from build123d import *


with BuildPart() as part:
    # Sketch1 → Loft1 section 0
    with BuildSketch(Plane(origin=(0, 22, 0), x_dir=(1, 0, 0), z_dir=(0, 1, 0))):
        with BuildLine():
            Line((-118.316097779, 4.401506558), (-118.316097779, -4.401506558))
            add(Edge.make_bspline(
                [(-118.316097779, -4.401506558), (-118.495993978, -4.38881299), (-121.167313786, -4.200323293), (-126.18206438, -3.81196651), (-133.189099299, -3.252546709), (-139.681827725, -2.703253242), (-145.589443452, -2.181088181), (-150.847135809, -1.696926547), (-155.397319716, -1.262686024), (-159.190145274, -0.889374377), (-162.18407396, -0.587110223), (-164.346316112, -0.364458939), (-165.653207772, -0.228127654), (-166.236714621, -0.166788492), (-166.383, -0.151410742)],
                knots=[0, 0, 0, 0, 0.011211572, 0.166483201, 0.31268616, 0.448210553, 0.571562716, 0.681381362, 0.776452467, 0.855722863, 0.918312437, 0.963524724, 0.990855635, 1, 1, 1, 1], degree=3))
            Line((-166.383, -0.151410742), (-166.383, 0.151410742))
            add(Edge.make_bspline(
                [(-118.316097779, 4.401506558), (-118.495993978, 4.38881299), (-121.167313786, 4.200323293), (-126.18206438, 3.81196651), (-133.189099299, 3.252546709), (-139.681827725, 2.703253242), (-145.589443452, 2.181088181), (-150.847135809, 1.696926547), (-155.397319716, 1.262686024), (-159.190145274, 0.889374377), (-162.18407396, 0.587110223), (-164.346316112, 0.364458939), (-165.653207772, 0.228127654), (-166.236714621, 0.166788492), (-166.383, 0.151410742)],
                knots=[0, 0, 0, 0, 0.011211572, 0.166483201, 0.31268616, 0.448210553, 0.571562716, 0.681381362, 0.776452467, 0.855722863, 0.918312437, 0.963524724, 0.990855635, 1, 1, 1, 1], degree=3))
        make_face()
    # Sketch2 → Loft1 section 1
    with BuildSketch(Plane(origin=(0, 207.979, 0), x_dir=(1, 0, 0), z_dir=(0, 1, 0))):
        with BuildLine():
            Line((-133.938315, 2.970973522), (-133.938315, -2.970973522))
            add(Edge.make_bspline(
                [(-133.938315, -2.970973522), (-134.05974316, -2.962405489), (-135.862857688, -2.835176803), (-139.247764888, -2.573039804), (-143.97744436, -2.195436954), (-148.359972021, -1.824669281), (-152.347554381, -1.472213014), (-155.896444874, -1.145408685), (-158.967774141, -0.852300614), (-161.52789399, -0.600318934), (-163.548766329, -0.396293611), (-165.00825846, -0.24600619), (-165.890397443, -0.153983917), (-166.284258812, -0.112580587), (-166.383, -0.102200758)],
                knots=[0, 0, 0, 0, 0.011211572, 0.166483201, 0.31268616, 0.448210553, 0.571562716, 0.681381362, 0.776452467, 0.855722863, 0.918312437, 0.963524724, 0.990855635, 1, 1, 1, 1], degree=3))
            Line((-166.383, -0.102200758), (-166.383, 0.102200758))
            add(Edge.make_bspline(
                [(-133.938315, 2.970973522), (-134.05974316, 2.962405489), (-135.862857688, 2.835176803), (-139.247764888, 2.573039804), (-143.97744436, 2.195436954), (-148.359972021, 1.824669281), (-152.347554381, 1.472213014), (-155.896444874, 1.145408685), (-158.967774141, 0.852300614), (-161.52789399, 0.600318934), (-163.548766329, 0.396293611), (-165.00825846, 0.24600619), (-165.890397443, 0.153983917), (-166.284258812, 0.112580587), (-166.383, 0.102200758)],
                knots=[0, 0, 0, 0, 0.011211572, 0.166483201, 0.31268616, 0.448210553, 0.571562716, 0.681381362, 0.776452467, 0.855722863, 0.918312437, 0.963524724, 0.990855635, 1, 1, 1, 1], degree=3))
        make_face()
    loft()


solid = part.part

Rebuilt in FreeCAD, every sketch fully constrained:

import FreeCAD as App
import Part
import Sketcher
from FreeCAD import Vector

doc = App.newDocument("Part")
body = doc.addObject("PartDesign::Body", "Body")

# Sketch on XZ plane
sketch1 = body.newObject("Sketcher::SketchObject", "Sketch")
sketch1.AttachmentSupport = (doc.getObject("XZ_Plane"), [""])
sketch1.MapMode = "FlatFace"
sketch1.AttachmentOffset = App.Placement(Vector(0, 0, -22), App.Rotation())
sketch1.addGeometry(Part.LineSegment(Vector(-118.316098, 4.401507, 0), Vector(-118.316098, -4.401507, 0)), False)
sketch1.addGeometry(Part.BSplineCurve([Vector(-118.316098, -4.401507, 0), Vector(-118.495994, -4.388813, 0), Vector(-121.167314, -4.200323, 0), Vector(-126.182064, -3.811967, 0), Vector(-133.189099, -3.252547, 0), Vector(-139.681828, -2.703253, 0), Vector(-145.589443, -2.181088, 0), Vector(-150.847136, -1.696927, 0), Vector(-155.39732, -1.262686, 0), Vector(-159.190145, -0.889374, 0), Vector(-162.184074, -0.58711, 0), Vector(-164.346316, -0.364459, 0), Vector(-165.653208, -0.228128, 0), Vector(-166.236715, -0.166788, 0), Vector(-166.383, -0.151411, 0)], [4, 1, 1, 1, 1, 1, 1, 1, 1, 1, 1, 1, 4], [0, 0.011211572, 0.166483201, 0.31268616, 0.448210553, 0.571562716, 0.681381362, 0.776452467, 0.855722863, 0.918312437, 0.963524724, 0.990855635, 1], False, 3, [1, 1, 1, 1, 1, 1, 1, 1, 1, 1, 1, 1, 1, 1, 1], False), False)
sketch1.addGeometry(Part.LineSegment(Vector(-166.383, -0.151411, 0), Vector(-166.383, 0.151411, 0)), False)
sketch1.addGeometry(Part.BSplineCurve([Vector(-118.316098, 4.401507, 0), Vector(-118.495994, 4.388813, 0), Vector(-121.167314, 4.200323, 0), Vector(-126.182064, 3.811967, 0), Vector(-133.189099, 3.252547, 0), Vector(-139.681828, 2.703253, 0), Vector(-145.589443, 2.181088, 0), Vector(-150.847136, 1.696927, 0), Vector(-155.39732, 1.262686, 0), Vector(-159.190145, 0.889374, 0), Vector(-162.184074, 0.58711, 0), Vector(-164.346316, 0.364459, 0), Vector(-165.653208, 0.228128, 0), Vector(-166.236715, 0.166788, 0), Vector(-166.383, 0.151411, 0)], [4, 1, 1, 1, 1, 1, 1, 1, 1, 1, 1, 1, 4], [0, 0.011211572, 0.166483201, 0.31268616, 0.448210553, 0.571562716, 0.681381362, 0.776452467, 0.855722863, 0.918312437, 0.963524724, 0.990855635, 1], False, 3, [1, 1, 1, 1, 1, 1, 1, 1, 1, 1, 1, 1, 1, 1, 1], False), False)
sketch1.addConstraint(Sketcher.Constraint("Block", 1))
sketch1.addConstraint(Sketcher.Constraint("Block", 3))
sketch1.addConstraint(Sketcher.Constraint("Coincident", 0, 2, 1, 1))
sketch1.addConstraint(Sketcher.Constraint("Coincident", 1, 2, 2, 1))
sketch1.addConstraint(Sketcher.Constraint("Coincident", 2, 2, 3, 2))
sketch1.addConstraint(Sketcher.Constraint("Coincident", 3, 1, 0, 1))

# Sketch on XZ plane
sketch2 = body.newObject("Sketcher::SketchObject", "Sketch001")
sketch2.AttachmentSupport = (doc.getObject("XZ_Plane"), [""])
sketch2.MapMode = "FlatFace"
sketch2.AttachmentOffset = App.Placement(Vector(0, 0, -207.979), App.Rotation())
sketch2.addGeometry(Part.LineSegment(Vector(-133.938315, 2.970974, 0), Vector(-133.938315, -2.970974, 0)), False)
sketch2.addGeometry(Part.BSplineCurve([Vector(-133.938315, -2.970974, 0), Vector(-134.059743, -2.962405, 0), Vector(-135.862858, -2.835177, 0), Vector(-139.247765, -2.57304, 0), Vector(-143.977444, -2.195437, 0), Vector(-148.359972, -1.824669, 0), Vector(-152.347554, -1.472213, 0), Vector(-155.896445, -1.145409, 0), Vector(-158.967774, -0.852301, 0), Vector(-161.527894, -0.600319, 0), Vector(-163.548766, -0.396294, 0), Vector(-165.008258, -0.246006, 0), Vector(-165.890397, -0.153984, 0), Vector(-166.284259, -0.112581, 0), Vector(-166.383, -0.102201, 0)], [4, 1, 1, 1, 1, 1, 1, 1, 1, 1, 1, 1, 4], [0, 0.011211572, 0.166483201, 0.31268616, 0.448210553, 0.571562716, 0.681381362, 0.776452467, 0.855722863, 0.918312437, 0.963524724, 0.990855635, 1], False, 3, [1, 1, 1, 1, 1, 1, 1, 1, 1, 1, 1, 1, 1, 1, 1], False), False)
sketch2.addGeometry(Part.LineSegment(Vector(-166.383, -0.102201, 0), Vector(-166.383, 0.102201, 0)), False)
sketch2.addGeometry(Part.BSplineCurve([Vector(-133.938315, 2.970974, 0), Vector(-134.059743, 2.962405, 0), Vector(-135.862858, 2.835177, 0), Vector(-139.247765, 2.57304, 0), Vector(-143.977444, 2.195437, 0), Vector(-148.359972, 1.824669, 0), Vector(-152.347554, 1.472213, 0), Vector(-155.896445, 1.145409, 0), Vector(-158.967774, 0.852301, 0), Vector(-161.527894, 0.600319, 0), Vector(-163.548766, 0.396294, 0), Vector(-165.008258, 0.246006, 0), Vector(-165.890397, 0.153984, 0), Vector(-166.284259, 0.112581, 0), Vector(-166.383, 0.102201, 0)], [4, 1, 1, 1, 1, 1, 1, 1, 1, 1, 1, 1, 4], [0, 0.011211572, 0.166483201, 0.31268616, 0.448210553, 0.571562716, 0.681381362, 0.776452467, 0.855722863, 0.918312437, 0.963524724, 0.990855635, 1], False, 3, [1, 1, 1, 1, 1, 1, 1, 1, 1, 1, 1, 1, 1, 1, 1], False), False)
sketch2.addConstraint(Sketcher.Constraint("Block", 1))
sketch2.addConstraint(Sketcher.Constraint("Block", 3))
sketch2.addConstraint(Sketcher.Constraint("Coincident", 0, 2, 1, 1))
sketch2.addConstraint(Sketcher.Constraint("Coincident", 1, 2, 2, 1))
sketch2.addConstraint(Sketcher.Constraint("Coincident", 2, 2, 3, 2))
sketch2.addConstraint(Sketcher.Constraint("Coincident", 3, 1, 0, 1))

additiveloft = body.newObject("PartDesign::AdditiveLoft", "AdditiveLoft")
additiveloft.Profile = sketch1
additiveloft.Sections = [sketch2]

doc.recompute()
